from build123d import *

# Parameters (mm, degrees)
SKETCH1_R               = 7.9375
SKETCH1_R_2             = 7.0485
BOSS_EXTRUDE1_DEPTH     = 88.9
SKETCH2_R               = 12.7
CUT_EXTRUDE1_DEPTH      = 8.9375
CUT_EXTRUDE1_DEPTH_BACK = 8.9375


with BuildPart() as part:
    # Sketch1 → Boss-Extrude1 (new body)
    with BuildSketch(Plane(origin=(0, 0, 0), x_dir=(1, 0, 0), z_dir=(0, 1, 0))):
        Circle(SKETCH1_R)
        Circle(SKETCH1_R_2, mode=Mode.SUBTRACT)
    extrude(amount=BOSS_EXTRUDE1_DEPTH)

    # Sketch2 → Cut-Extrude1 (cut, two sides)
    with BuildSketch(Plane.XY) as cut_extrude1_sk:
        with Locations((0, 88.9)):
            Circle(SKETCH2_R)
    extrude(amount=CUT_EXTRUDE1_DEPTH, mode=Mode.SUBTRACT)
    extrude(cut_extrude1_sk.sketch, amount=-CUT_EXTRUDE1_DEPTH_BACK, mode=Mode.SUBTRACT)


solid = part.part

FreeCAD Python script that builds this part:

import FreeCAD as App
import Part
import Sketcher

V = App.Vector
Q = App.Units.Quantity

doc = App.newDocument("Part")
body = doc.addObject("PartDesign::Body", "Body")

# Sketch on XZ plane
sketch1 = body.newObject("Sketcher::SketchObject", "Sketch")
sketch1.AttachmentSupport = (doc.getObject("XZ_Plane"), [""])
sketch1.MapMode = "FlatFace"
sketch1.addGeometry([
    Part.Circle(V(0, 0, 0), V(0, 0, 1), 8),
    Part.Circle(V(0, 0, 0), V(0, 0, 1), 7),
], False)
sketch1.addConstraint([
    Sketcher.Constraint("Coincident", 0, 3, -1, 1),
    Sketcher.Constraint("Coincident", 1, 3, -1, 1),
    Sketcher.Constraint("Diameter", 0, Q("0.625 in")),
    Sketcher.Constraint("Diameter", 1, Q("0.555 in")),
])
pad1 = body.newObject("PartDesign::Pad", "Pad")
pad1.Profile = sketch1
pad1.Length = Q("3.5 in")
pad1.Reversed = True

# Sketch on XY plane
sketch2 = body.newObject("Sketcher::SketchObject", "Sketch001")
sketch2.AttachmentSupport = (doc.getObject("XY_Plane"), [""])
sketch2.MapMode = "FlatFace"
sketch2.addGeometry(Part.Circle(V(0, 89, 0), V(0, 0, 1), 13), False)
sketch2.addConstraint([
    Sketcher.Constraint("PointOnObject", 0, 3, -2),
    Sketcher.Constraint("Diameter", 0, Q("1 in")),
    Sketcher.Constraint("DistanceY", -1, 1, 0, 3, Q("3.5 in")),
])
pocket1 = body.newObject("PartDesign::Pocket", "Pocket")
pocket1.Profile = sketch2
pocket1.Type = "ThroughAll"
pocket1.Midplane = True

doc.recompute()
